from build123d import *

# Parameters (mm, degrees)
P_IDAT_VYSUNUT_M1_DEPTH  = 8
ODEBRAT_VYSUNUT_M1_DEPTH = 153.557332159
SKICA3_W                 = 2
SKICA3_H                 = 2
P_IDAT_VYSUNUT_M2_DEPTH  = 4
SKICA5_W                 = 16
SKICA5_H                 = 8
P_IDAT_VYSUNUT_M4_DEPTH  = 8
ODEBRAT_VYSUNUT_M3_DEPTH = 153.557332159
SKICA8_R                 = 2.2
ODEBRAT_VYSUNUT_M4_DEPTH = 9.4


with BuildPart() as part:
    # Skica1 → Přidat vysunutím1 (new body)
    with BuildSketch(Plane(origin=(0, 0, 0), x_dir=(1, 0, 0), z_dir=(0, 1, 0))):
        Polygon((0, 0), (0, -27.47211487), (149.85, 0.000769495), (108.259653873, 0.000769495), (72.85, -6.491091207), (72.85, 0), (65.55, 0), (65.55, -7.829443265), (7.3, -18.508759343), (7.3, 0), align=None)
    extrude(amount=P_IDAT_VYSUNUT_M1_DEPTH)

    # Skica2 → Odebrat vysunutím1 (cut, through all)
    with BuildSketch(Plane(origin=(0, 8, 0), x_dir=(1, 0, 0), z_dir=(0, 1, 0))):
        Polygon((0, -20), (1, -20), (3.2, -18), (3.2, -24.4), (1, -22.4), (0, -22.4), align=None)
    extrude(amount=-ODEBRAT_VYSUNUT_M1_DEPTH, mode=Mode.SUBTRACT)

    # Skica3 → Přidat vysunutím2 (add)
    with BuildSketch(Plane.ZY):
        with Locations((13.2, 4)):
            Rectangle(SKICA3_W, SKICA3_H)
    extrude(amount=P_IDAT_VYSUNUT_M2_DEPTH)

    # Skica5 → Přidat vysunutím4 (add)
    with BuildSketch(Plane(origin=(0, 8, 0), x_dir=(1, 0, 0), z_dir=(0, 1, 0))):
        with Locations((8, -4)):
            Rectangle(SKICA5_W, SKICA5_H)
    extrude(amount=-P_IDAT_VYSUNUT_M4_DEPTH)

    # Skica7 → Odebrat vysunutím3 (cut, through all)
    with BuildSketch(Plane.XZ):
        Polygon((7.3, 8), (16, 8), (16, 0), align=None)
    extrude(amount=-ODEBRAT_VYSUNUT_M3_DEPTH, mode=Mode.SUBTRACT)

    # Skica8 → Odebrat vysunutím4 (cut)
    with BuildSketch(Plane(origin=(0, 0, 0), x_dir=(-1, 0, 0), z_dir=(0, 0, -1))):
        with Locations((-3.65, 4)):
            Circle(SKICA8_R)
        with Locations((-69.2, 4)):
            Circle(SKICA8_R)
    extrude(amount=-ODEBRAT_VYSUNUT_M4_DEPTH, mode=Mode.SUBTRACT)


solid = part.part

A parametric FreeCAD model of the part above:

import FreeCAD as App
import Part
import Sketcher

V = App.Vector

doc = App.newDocument("Part")
body = doc.addObject("PartDesign::Body", "Body")

sketch1 = body.newObject("Sketcher::SketchObject", "Sketch")
sketch1.AttachmentSupport = (doc.getObject("XZ_Plane"), [""])
sketch1.MapMode = "FlatFace"
sketch1.addGeometry([
    Part.LineSegment(V(0, 0, 0), V(0, 27.472115, 0)),
    Part.LineSegment(V(0, 27.472115, 0), V(149.85, -0.000769, 0)),
    Part.LineSegment(V(149.85, -0.000769, 0), V(108.259654, -0.000769, 0)),
    Part.LineSegment(V(108.259654, -0.000769, 0), V(72.85, 6.491091, 0)),
    Part.LineSegment(V(72.85, 6.491091, 0), V(72.85, 0, 0)),
    Part.LineSegment(V(72.85, 0, 0), V(65.55, 0, 0)),
    Part.LineSegment(V(65.55, 0, 0), V(65.55, 7.829443, 0)),
    Part.LineSegment(V(65.55, 7.829443, 0), V(7.3, 18.508759, 0)),
    Part.LineSegment(V(7.3, 18.508759, 0), V(7.3, 0, 0)),
    Part.LineSegment(V(7.3, 0, 0), V(0, 0, 0)),
], False)
sketch1.addConstraint([
    Sketcher.Constraint("Coincident", 0, 2, 1, 1),
    Sketcher.Constraint("Coincident", 1, 2, 2, 1),
    Sketcher.Constraint("Coincident", 2, 2, 3, 1),
    Sketcher.Constraint("Coincident", 3, 2, 4, 1),
    Sketcher.Constraint("Coincident", 4, 2, 5, 1),
    Sketcher.Constraint("Coincident", 5, 2, 6, 1),
    Sketcher.Constraint("Coincident", 6, 2, 7, 1),
    Sketcher.Constraint("Coincident", 7, 2, 8, 1),
    Sketcher.Constraint("Coincident", 8, 2, 9, 1),
    Sketcher.Constraint("Coincident", 9, 2, 0, 1),
    Sketcher.Constraint("Vertical", 0),
    Sketcher.Constraint("Horizontal", 2),
    Sketcher.Constraint("Vertical", 4),
    Sketcher.Constraint("Horizontal", 5),
    Sketcher.Constraint("Vertical", 6),
    Sketcher.Constraint("Vertical", 8),
    Sketcher.Constraint("Horizontal", 9),
    Sketcher.Constraint("Coincident", 9, 2, -1, 1),
    Sketcher.Constraint("PointOnObject", 4, 2, -1),
    Sketcher.Constraint("Parallel", 1, 3),
    Sketcher.Constraint("Parallel", 3, 7),
    Sketcher.Constraint("Equal", 5, 9),
    Sketcher.Constraint("DistanceX", 5, 2, 5, 1, 7.3),
    Sketcher.Constraint("DistanceX", 3, 2, 1, 2, 77.0),
    Sketcher.Constraint("DistanceX", -1, 1, 1, 2, 149.85),
    Sketcher.Constraint("DistanceY", 4, 2, 4, 1, 6.491091),
    Sketcher.Constraint("DistanceY", 8, 2, 8, 1, 18.508759),
    Sketcher.Constraint("Distance", 1, 152.347569),
    Sketcher.Constraint("Distance", 3, 35.999831),
])
pad1 = body.newObject("PartDesign::Pad", "Pad")
pad1.Profile = sketch1
pad1.Length = 8
pad1.Reversed = True

sketch2 = body.newObject("Sketcher::SketchObject", "Sketch001")
sketch2.AttachmentSupport = (doc.getObject("XZ_Plane"), [""])
sketch2.MapMode = "FlatFace"
sketch2.AttachmentOffset = App.Placement(V(0, 0, -8), App.Rotation())
sketch2.addGeometry([
    Part.LineSegment(V(1, 20, 0), V(0, 20, 0)),
    Part.LineSegment(V(0, 20, 0), V(0, 22.4, 0)),
    Part.LineSegment(V(0, 22.4, 0), V(1, 22.4, 0)),
    Part.LineSegment(V(1, 22.4, 0), V(3.2, 24.4, 0)),
    Part.LineSegment(V(3.2, 24.4, 0), V(3.2, 18, 0)),
    Part.LineSegment(V(3.2, 18, 0), V(1, 20, 0)),
], False)
sketch2.addConstraint([
    Sketcher.Constraint("Coincident", 0, 2, 1, 1),
    Sketcher.Constraint("Coincident", 1, 2, 2, 1),
    Sketcher.Constraint("Coincident", 2, 2, 3, 1),
    Sketcher.Constraint("Coincident", 3, 2, 4, 1),
    Sketcher.Constraint("Coincident", 4, 2, 5, 1),
    Sketcher.Constraint("Coincident", 5, 2, 0, 1),
    Sketcher.Constraint("Horizontal", 0),
    Sketcher.Constraint("Vertical", 1),
    Sketcher.Constraint("Horizontal", 2),
    Sketcher.Constraint("Vertical", 4),
    Sketcher.Constraint("PointOnObject", 0, 2, -2),
    Sketcher.Constraint("Vertical", 2, 2, 5, 2),
    Sketcher.Constraint("Equal", 3, 5),
    Sketcher.Constraint("DistanceX", 0, 2, 0, 1, 1.0),
    Sketcher.Constraint("DistanceY", 1, 1, 1, 2, 2.4),
    Sketcher.Constraint("DistanceY", 4, 2, 4, 1, 6.4),
    Sketcher.Constraint("DistanceY", -1, 1, 0, 2, 20.0),
    Sketcher.Constraint("DistanceX", -1, 1, 3, 2, 3.2),
])
pocket1 = body.newObject("PartDesign::Pocket", "Pocket")
pocket1.Profile = sketch2
pocket1.Type = "ThroughAll"
pocket1.Reversed = True

sketch3 = body.newObject("Sketcher::SketchObject", "Sketch002")
sketch3.AttachmentSupport = (doc.getObject("YZ_Plane"), [""])
sketch3.MapMode = "FlatFace"
sketch3.addGeometry([
    Part.LineSegment(V(5, 12.2, 0), V(3, 12.2, 0)),
    Part.LineSegment(V(3, 12.2, 0), V(3, 14.2, 0)),
    Part.LineSegment(V(3, 14.2, 0), V(5, 14.2, 0)),
    Part.LineSegment(V(5, 14.2, 0), V(5, 12.2, 0)),
], False)
sketch3.addConstraint([
    Sketcher.Constraint("Coincident", 0, 2, 1, 1),
    Sketcher.Constraint("Coincident", 1, 2, 2, 1),
    Sketcher.Constraint("Coincident", 2, 2, 3, 1),
    Sketcher.Constraint("Coincident", 3, 2, 0, 1),
    Sketcher.Constraint("Horizontal", 0),
    Sketcher.Constraint("Vertical", 1),
    Sketcher.Constraint("Horizontal", 2),
    Sketcher.Constraint("Vertical", 3),
    Sketcher.Constraint("Equal", 2, 1),
    Sketcher.Constraint("DistanceX", 0, 2, 0, 1, 2.0),
    Sketcher.Constraint("DistanceX", -1, 1, 0, 2, 3.0),
    Sketcher.Constraint("DistanceY", -1, 1, 0, 2, 12.2),
])
pad2 = body.newObject("PartDesign::Pad", "Pad001")
pad2.Profile = sketch3
pad2.Length = 4
pad2.Reversed = True

sketch4 = body.newObject("Sketcher::SketchObject", "Sketch003")
sketch4.AttachmentSupport = (doc.getObject("XZ_Plane"), [""])
sketch4.MapMode = "FlatFace"
sketch4.AttachmentOffset = App.Placement(V(0, 0, -8), App.Rotation())
sketch4.addGeometry([
    Part.LineSegment(V(0, 0, 0), V(0, 8, 0)),
    Part.LineSegment(V(0, 8, 0), V(16, 8, 0)),
    Part.LineSegment(V(16, 8, 0), V(16, 0, 0)),
    Part.LineSegment(V(16, 0, 0), V(0, 0, 0)),
], False)
sketch4.addConstraint([
    Sketcher.Constraint("Coincident", 0, 2, 1, 1),
    Sketcher.Constraint("Coincident", 1, 2, 2, 1),
    Sketcher.Constraint("Coincident", 2, 2, 3, 1),
    Sketcher.Constraint("Coincident", 3, 2, 0, 1),
    Sketcher.Constraint("Vertical", 0),
    Sketcher.Constraint("Horizontal", 1),
    Sketcher.Constraint("Vertical", 2),
    Sketcher.Constraint("Horizontal", 3),
    Sketcher.Constraint("Coincident", 3, 2, -1, 1),
    Sketcher.Constraint("DistanceX", 1, 1, 1, 2, 16.0),
    Sketcher.Constraint("DistanceY", 0, 1, 0, 2, 8.0),
])
pad3 = body.newObject("PartDesign::Pad", "Pad002")
pad3.Profile = sketch4
pad3.Length = 8

sketch5 = body.newObject("Sketcher::SketchObject", "Sketch004")
sketch5.AttachmentSupport = (doc.getObject("XZ_Plane"), [""])
sketch5.MapMode = "FlatFace"
sketch5.addGeometry([
    Part.LineSegment(V(16, 8, 0), V(7.3, 8, 0)),
    Part.LineSegment(V(7.3, 8, 0), V(16, 0, 0)),
    Part.LineSegment(V(16, 0, 0), V(16, 8, 0)),
], False)
sketch5.addConstraint([
    Sketcher.Constraint("Coincident", 0, 2, 1, 1),
    Sketcher.Constraint("Coincident", 1, 2, 2, 1),
    Sketcher.Constraint("Coincident", 2, 2, 0, 1),
    Sketcher.Constraint("Horizontal", 0),
    Sketcher.Constraint("Vertical", 2),
    Sketcher.Constraint("PointOnObject", 1, 2, -1),
    Sketcher.Constraint("DistanceY", 2, 1, 2, 2, 8.0),
    Sketcher.Constraint("DistanceX", 0, 2, 0, 1, 8.7),
    Sketcher.Constraint("DistanceX", -1, 1, 1, 2, 16.0),
])
pocket2 = body.newObject("PartDesign::Pocket", "Pocket001")
pocket2.Profile = sketch5
pocket2.Type = "ThroughAll"

sketch6 = body.newObject("Sketcher::SketchObject", "Sketch005")
sketch6.AttachmentSupport = (doc.getObject("XY_Plane"), [""])
sketch6.MapMode = "FlatFace"
sketch6.addGeometry([
    Part.Circle(V(3.65, 4, 0), V(0, 0, 1), 2.2),
    Part.Circle(V(69.2, 4, 0), V(0, 0, 1), 2.2),
], False)
sketch6.addConstraint([
    Sketcher.Constraint("Equal", 0, 1),
    Sketcher.Constraint("Horizontal", 0, 3, 1, 3),
    Sketcher.Constraint("Diameter", 0, 4.4),
    Sketcher.Constraint("DistanceY", -1, 1, 0, 3, 4.0),
    Sketcher.Constraint("DistanceX", -1, 1, 1, 3, 69.2),
    Sketcher.Constraint("DistanceX", -1, 1, 0, 3, 3.65),
])
pocket3 = body.newObject("PartDesign::Pocket", "Pocket002")
pocket3.Profile = sketch6
pocket3.Length = 9.4
pocket3.Reversed = True

doc.recompute()
